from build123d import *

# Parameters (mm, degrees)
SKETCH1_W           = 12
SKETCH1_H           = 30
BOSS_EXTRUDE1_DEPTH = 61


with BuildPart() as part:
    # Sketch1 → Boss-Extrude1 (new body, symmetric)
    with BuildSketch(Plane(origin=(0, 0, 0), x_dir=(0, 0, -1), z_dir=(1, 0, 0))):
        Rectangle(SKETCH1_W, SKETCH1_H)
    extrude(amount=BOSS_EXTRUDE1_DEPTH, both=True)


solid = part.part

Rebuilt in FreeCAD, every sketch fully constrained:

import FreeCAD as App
import Part
import Sketcher

V = App.Vector
Q = App.Units.Quantity


def add_polygon(sketch, points):
    """Adds a closed chain of lines whose ends are joined by coincident constraints."""
    first, n = sketch.GeometryCount, len(points)
    for a, b in zip(points, points[1:] + points[:1]):
        sketch.addGeometry(Part.LineSegment(App.Vector(*a, 0), App.Vector(*b, 0)), False)
    for i in range(n):
        sketch.addConstraint(Sketcher.Constraint("Coincident", first + i, 2, first + (i + 1) % n, 1))

doc = App.newDocument("Part")
body = doc.addObject("PartDesign::Body", "Body")

# Sketch on YZ plane
sketch1 = body.newObject("Sketcher::SketchObject", "Sketch")
sketch1.AttachmentSupport = (doc.getObject("YZ_Plane"), [""])
sketch1.MapMode = "FlatFace"
add_polygon(sketch1, [(15, 6), (-15, 6), (-15, -6), (15, -6)])  # lines 0-3
sketch1.addConstraint([
    Sketcher.Constraint("Horizontal", 0),
    Sketcher.Constraint("Vertical", 1),
    Sketcher.Constraint("Horizontal", 2),
    Sketcher.Constraint("Vertical", 3),
    Sketcher.Constraint("Symmetric", 0, 2, 2, 2, -1, 1),
    Sketcher.Constraint("DistanceX", 0, 2, 0, 1, Q("30 mm")),
    Sketcher.Constraint("DistanceY", 1, 2, 1, 1, Q("12 mm")),
])
pad1 = body.newObject("PartDesign::Pad", "Pad")
pad1.Profile = sketch1
pad1.Length = 122
pad1.Midplane = True

doc.recompute()
